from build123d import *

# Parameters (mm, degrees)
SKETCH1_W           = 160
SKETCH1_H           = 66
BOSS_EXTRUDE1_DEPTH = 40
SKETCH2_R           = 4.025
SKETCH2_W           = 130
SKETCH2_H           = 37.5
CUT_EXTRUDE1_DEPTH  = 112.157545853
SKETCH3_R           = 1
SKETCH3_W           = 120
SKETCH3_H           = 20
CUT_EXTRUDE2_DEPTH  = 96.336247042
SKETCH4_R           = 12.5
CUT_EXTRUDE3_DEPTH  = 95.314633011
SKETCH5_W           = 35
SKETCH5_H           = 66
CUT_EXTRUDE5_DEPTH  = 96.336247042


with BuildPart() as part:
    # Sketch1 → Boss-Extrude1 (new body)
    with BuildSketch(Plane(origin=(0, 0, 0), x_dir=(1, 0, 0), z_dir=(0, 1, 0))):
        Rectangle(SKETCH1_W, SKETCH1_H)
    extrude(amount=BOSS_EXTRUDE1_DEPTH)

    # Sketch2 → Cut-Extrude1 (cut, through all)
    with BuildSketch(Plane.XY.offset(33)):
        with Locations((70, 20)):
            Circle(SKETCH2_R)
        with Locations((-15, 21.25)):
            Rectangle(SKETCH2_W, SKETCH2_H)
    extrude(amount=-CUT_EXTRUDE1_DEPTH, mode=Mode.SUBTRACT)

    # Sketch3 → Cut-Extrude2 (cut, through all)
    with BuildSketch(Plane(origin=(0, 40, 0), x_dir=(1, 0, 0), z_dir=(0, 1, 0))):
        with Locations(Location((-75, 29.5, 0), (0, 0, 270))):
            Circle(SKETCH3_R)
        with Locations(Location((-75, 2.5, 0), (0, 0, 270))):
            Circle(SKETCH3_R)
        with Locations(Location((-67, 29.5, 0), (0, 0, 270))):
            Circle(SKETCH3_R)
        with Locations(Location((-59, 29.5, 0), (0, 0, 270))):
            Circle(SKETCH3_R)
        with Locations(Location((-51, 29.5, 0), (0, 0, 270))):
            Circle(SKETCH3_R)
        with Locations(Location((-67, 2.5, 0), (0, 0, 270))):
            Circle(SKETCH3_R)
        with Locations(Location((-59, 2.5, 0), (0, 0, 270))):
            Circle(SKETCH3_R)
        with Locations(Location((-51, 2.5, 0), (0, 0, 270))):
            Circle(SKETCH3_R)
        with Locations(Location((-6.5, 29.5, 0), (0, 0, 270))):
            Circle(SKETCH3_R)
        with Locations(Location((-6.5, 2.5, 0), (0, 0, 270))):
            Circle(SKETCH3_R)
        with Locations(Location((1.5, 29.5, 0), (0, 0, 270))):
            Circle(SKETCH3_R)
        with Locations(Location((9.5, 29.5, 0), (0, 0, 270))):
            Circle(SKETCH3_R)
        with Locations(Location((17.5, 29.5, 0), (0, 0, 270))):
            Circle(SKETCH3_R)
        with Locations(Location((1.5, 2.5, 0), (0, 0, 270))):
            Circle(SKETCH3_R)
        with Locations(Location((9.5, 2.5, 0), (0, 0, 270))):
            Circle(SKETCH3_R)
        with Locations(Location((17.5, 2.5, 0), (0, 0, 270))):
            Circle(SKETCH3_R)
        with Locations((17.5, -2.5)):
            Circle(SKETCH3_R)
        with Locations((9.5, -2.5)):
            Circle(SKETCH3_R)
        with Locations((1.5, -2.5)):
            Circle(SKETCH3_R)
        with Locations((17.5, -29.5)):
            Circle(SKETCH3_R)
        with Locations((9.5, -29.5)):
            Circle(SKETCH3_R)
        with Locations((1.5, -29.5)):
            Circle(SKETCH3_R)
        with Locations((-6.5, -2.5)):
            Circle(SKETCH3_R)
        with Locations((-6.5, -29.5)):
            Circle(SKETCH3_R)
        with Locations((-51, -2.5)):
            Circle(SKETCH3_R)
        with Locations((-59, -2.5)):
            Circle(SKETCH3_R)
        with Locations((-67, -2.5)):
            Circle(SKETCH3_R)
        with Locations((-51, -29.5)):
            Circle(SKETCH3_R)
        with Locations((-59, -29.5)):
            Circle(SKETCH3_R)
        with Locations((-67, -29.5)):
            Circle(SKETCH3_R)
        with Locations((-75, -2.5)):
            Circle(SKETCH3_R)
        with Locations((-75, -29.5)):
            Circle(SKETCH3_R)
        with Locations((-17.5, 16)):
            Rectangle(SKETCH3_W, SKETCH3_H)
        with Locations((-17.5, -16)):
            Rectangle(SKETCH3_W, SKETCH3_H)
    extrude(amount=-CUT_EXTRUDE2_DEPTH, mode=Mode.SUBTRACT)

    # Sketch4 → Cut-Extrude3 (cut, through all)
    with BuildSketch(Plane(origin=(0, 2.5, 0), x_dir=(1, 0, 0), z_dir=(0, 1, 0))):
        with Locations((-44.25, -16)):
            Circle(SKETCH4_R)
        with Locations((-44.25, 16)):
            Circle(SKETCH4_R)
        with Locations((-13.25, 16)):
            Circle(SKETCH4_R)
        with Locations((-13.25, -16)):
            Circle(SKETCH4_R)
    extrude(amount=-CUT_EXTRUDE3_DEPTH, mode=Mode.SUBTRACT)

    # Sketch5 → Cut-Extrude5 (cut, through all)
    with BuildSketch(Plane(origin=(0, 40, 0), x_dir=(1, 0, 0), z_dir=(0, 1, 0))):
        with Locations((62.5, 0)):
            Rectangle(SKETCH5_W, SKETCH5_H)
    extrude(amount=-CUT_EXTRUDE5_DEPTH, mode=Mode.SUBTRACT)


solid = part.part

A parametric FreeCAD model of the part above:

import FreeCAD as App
import Part
import Sketcher
Q = App.Units.Quantity


def add_polygon(sketch, points):
    """Adds a closed chain of lines whose ends are joined by coincident constraints."""
    first, n = sketch.GeometryCount, len(points)
    for a, b in zip(points, points[1:] + points[:1]):
        sketch.addGeometry(Part.LineSegment(App.Vector(*a, 0), App.Vector(*b, 0)), False)
    for i in range(n):
        sketch.addConstraint(Sketcher.Constraint("Coincident", first + i, 2, first + (i + 1) % n, 1))

doc = App.newDocument("Part")
params = doc.addObject("Spreadsheet::Sheet", "Params")
for row, (alias, value) in enumerate([
    ("sketch1_width", "160 mm"),
    ("sketch1_height", "66 mm"),
    ("pad1_length", "40 mm"),
    ("sketch2_diameter", "8.05 mm"),
    ("sketch2_width", "130 mm"),
    ("sketch2_height", "37.5 mm"),
    ("sketch3_diameter", "2 mm"),
    ("sketch3_width", "120 mm"),
    ("sketch3_height", "20 mm"),
    ("sketch4_diameter", "25 mm"),
    ("sketch5_width", "35 mm"),
    ("sketch5_height", "66 mm"),
], start=1):
    params.set(f"A{row}", alias)
    params.set(f"B{row}", "=" + value)
    params.setAlias(f"B{row}", alias)

body = doc.addObject("PartDesign::Body", "Body")

sketch1 = body.newObject("Sketcher::SketchObject", "Sketch")
sketch1.AttachmentSupport = (doc.getObject("XZ_Plane"), [""])
sketch1.MapMode = "FlatFace"
add_polygon(sketch1, [(-80, -33), (-80, 33), (80, 33), (80, -33)])
sketch1.addConstraint([
    Sketcher.Constraint("Vertical", 0),
    Sketcher.Constraint("Horizontal", 1),
    Sketcher.Constraint("Vertical", 2),
    Sketcher.Constraint("Horizontal", 3),
    Sketcher.Constraint("Symmetric", 0, 2, 2, 2, -1, 1),
    Sketcher.Constraint("DistanceX", 1, 1, 1, 2, Q("160 mm")),
    Sketcher.Constraint("DistanceY", 0, 1, 0, 2, Q("66 mm")),
])
sketch1.setExpression("Constraints[9]", "Params.sketch1_width")
sketch1.setExpression("Constraints[10]", "Params.sketch1_height")
pad1 = body.newObject("PartDesign::Pad", "Pad")
pad1.Profile = sketch1
pad1.setExpression("Length", "Params.pad1_length")
pad1.Reversed = True

sketch2 = body.newObject("Sketcher::SketchObject", "Sketch001")
sketch2.AttachmentSupport = (doc.getObject("XY_Plane"), [""])
sketch2.MapMode = "FlatFace"
sketch2.AttachmentOffset = App.Placement(App.Vector(0, 0, 33), App.Rotation())
sketch2.addGeometry(Part.Circle(App.Vector(70, 20, 0), App.Vector(0, 0, 1), 4), False)
add_polygon(sketch2, [(-80, 40), (-80, 2.5), (50, 2.5), (50, 40)])
sketch2.addConstraint([
    Sketcher.Constraint("Vertical", 1),
    Sketcher.Constraint("Horizontal", 2),
    Sketcher.Constraint("Vertical", 3),
    Sketcher.Constraint("Horizontal", 4),
    Sketcher.Constraint("Diameter", 0, Q("8.05 mm")),
    Sketcher.Constraint("DistanceX", 2, 1, 2, 2, Q("130 mm")),
    Sketcher.Constraint("DistanceY", 1, 2, 1, 1, Q("37.5 mm")),
    Sketcher.Constraint("DistanceX", -1, 1, 0, 3, Q("70 mm")),
    Sketcher.Constraint("DistanceY", -1, 1, 0, 3, Q("20 mm")),
    Sketcher.Constraint("DistanceX", 1, 2, -1, 1, Q("80 mm")),
    Sketcher.Constraint("DistanceY", -1, 1, 3, 2, Q("40 mm")),
])
sketch2.setExpression("Constraints[8]", "Params.sketch2_diameter")
sketch2.setExpression("Constraints[9]", "Params.sketch2_width")
sketch2.setExpression("Constraints[10]", "Params.sketch2_height")
pocket1 = body.newObject("PartDesign::Pocket", "Pocket")
pocket1.Profile = sketch2
pocket1.Type = "ThroughAll"

sketch3 = body.newObject("Sketcher::SketchObject", "Sketch002")
sketch3.AttachmentSupport = (doc.getObject("XZ_Plane"), [""])
sketch3.MapMode = "FlatFace"
sketch3.AttachmentOffset = App.Placement(App.Vector(0, 0, -40), App.Rotation())
sketch3.addGeometry(Part.Circle(App.Vector(-75, -29.5, 0), App.Vector(0, 0, 1), 1), False)
sketch3.addGeometry(Part.Circle(App.Vector(-75, -2.5, 0), App.Vector(0, 0, 1), 1), False)
sketch3.addGeometry(Part.Circle(App.Vector(-67, -29.5, 0), App.Vector(0, 0, 1), 1), False)
sketch3.addGeometry(Part.Circle(App.Vector(-59, -29.5, 0), App.Vector(0, 0, 1), 1), False)
sketch3.addGeometry(Part.Circle(App.Vector(-51, -29.5, 0), App.Vector(0, 0, 1), 1), False)
sketch3.addGeometry(Part.Circle(App.Vector(-67, -2.5, 0), App.Vector(0, 0, 1), 1), False)
sketch3.addGeometry(Part.Circle(App.Vector(-59, -2.5, 0), App.Vector(0, 0, 1), 1), False)
sketch3.addGeometry(Part.Circle(App.Vector(-51, -2.5, 0), App.Vector(0, 0, 1), 1), False)
sketch3.addGeometry(Part.Circle(App.Vector(-6.5, -29.5, 0), App.Vector(0, 0, 1), 1), False)
sketch3.addGeometry(Part.Circle(App.Vector(-6.5, -2.5, 0), App.Vector(0, 0, 1), 1), False)
sketch3.addGeometry(Part.Circle(App.Vector(1.5, -29.5, 0), App.Vector(0, 0, 1), 1), False)
sketch3.addGeometry(Part.Circle(App.Vector(9.5, -29.5, 0), App.Vector(0, 0, 1), 1), False)
sketch3.addGeometry(Part.Circle(App.Vector(17.5, -29.5, 0), App.Vector(0, 0, 1), 1), False)
sketch3.addGeometry(Part.Circle(App.Vector(1.5, -2.5, 0), App.Vector(0, 0, 1), 1), False)
sketch3.addGeometry(Part.Circle(App.Vector(9.5, -2.5, 0), App.Vector(0, 0, 1), 1), False)
sketch3.addGeometry(Part.Circle(App.Vector(17.5, -2.5, 0), App.Vector(0, 0, 1), 1), False)
sketch3.addGeometry(Part.Circle(App.Vector(17.5, 2.5, 0), App.Vector(0, 0, 1), 1), False)
sketch3.addGeometry(Part.Circle(App.Vector(9.5, 2.5, 0), App.Vector(0, 0, 1), 1), False)
sketch3.addGeometry(Part.Circle(App.Vector(1.5, 2.5, 0), App.Vector(0, 0, 1), 1), False)
sketch3.addGeometry(Part.Circle(App.Vector(17.5, 29.5, 0), App.Vector(0, 0, 1), 1), False)
sketch3.addGeometry(Part.Circle(App.Vector(9.5, 29.5, 0), App.Vector(0, 0, 1), 1), False)
sketch3.addGeometry(Part.Circle(App.Vector(1.5, 29.5, 0), App.Vector(0, 0, 1), 1), False)
sketch3.addGeometry(Part.Circle(App.Vector(-6.5, 2.5, 0), App.Vector(0, 0, 1), 1), False)
sketch3.addGeometry(Part.Circle(App.Vector(-6.5, 29.5, 0), App.Vector(0, 0, 1), 1), False)
sketch3.addGeometry(Part.Circle(App.Vector(-51, 2.5, 0), App.Vector(0, 0, 1), 1), False)
sketch3.addGeometry(Part.Circle(App.Vector(-59, 2.5, 0), App.Vector(0, 0, 1), 1), False)
sketch3.addGeometry(Part.Circle(App.Vector(-67, 2.5, 0), App.Vector(0, 0, 1), 1), False)
sketch3.addGeometry(Part.Circle(App.Vector(-51, 29.5, 0), App.Vector(0, 0, 1), 1), False)
sketch3.addGeometry(Part.Circle(App.Vector(-59, 29.5, 0), App.Vector(0, 0, 1), 1), False)
sketch3.addGeometry(Part.Circle(App.Vector(-67, 29.5, 0), App.Vector(0, 0, 1), 1), False)
sketch3.addGeometry(Part.Circle(App.Vector(-75, 2.5, 0), App.Vector(0, 0, 1), 1), False)
sketch3.addGeometry(Part.Circle(App.Vector(-75, 29.5, 0), App.Vector(0, 0, 1), 1), False)
add_polygon(sketch3, [(-77.5, -26), (-77.5, -6), (42.5, -6), (42.5, -26)])
add_polygon(sketch3, [(-77.5, 6), (-77.5, 26), (42.5, 26), (42.5, 6)])
sketch3.addConstraint([
    Sketcher.Constraint("Vertical", 32),
    Sketcher.Constraint("Horizontal", 33),
    Sketcher.Constraint("Vertical", 34),
    Sketcher.Constraint("Horizontal", 35),
    Sketcher.Constraint("Vertical", 36),
    Sketcher.Constraint("Horizontal", 37),
    Sketcher.Constraint("Vertical", 38),
    Sketcher.Constraint("Horizontal", 39),
    Sketcher.Constraint("Equal", 0, 1),
    Sketcher.Constraint("Equal", 1, 2),
    Sketcher.Constraint("Equal", 2, 3),
    Sketcher.Constraint("Equal", 3, 4),
    Sketcher.Constraint("Equal", 4, 5),
    Sketcher.Constraint("Equal", 5, 6),
    Sketcher.Constraint("Equal", 6, 7),
    Sketcher.Constraint("Equal", 7, 8),
    Sketcher.Constraint("Equal", 8, 9),
    Sketcher.Constraint("Equal", 9, 10),
    Sketcher.Constraint("Equal", 10, 11),
    Sketcher.Constraint("Equal", 11, 12),
    Sketcher.Constraint("Equal", 12, 13),
    Sketcher.Constraint("Equal", 13, 14),
    Sketcher.Constraint("Equal", 14, 15),
    Sketcher.Constraint("Equal", 15, 16),
    Sketcher.Constraint("Equal", 16, 17),
    Sketcher.Constraint("Equal", 17, 18),
    Sketcher.Constraint("Equal", 18, 19),
    Sketcher.Constraint("Equal", 19, 20),
    Sketcher.Constraint("Equal", 20, 21),
    Sketcher.Constraint("Equal", 21, 22),
    Sketcher.Constraint("Equal", 22, 23),
    Sketcher.Constraint("Equal", 23, 24),
    Sketcher.Constraint("Equal", 24, 25),
    Sketcher.Constraint("Equal", 25, 26),
    Sketcher.Constraint("Equal", 26, 27),
    Sketcher.Constraint("Equal", 27, 28),
    Sketcher.Constraint("Equal", 28, 29),
    Sketcher.Constraint("Equal", 29, 30),
    Sketcher.Constraint("Equal", 30, 31),
    Sketcher.Constraint("Symmetric", 15, 3, 16, 3, -1),
    Sketcher.Constraint("Symmetric", 14, 3, 17, 3, -1),
    Sketcher.Constraint("Symmetric", 13, 3, 18, 3, -1),
    Sketcher.Constraint("Symmetric", 12, 3, 19, 3, -1),
    Sketcher.Constraint("Symmetric", 11, 3, 20, 3, -1),
    Sketcher.Constraint("Symmetric", 10, 3, 21, 3, -1),
    Sketcher.Constraint("Symmetric", 9, 3, 22, 3, -1),
    Sketcher.Constraint("Symmetric", 8, 3, 23, 3, -1),
    Sketcher.Constraint("Symmetric", 7, 3, 24, 3, -1),
    Sketcher.Constraint("Symmetric", 6, 3, 25, 3, -1),
    Sketcher.Constraint("Symmetric", 5, 3, 26, 3, -1),
    Sketcher.Constraint("Symmetric", 4, 3, 27, 3, -1),
    Sketcher.Constraint("Symmetric", 3, 3, 28, 3, -1),
    Sketcher.Constraint("Symmetric", 2, 3, 29, 3, -1),
    Sketcher.Constraint("Symmetric", 1, 3, 30, 3, -1),
    Sketcher.Constraint("Symmetric", 0, 3, 31, 3, -1),
    Sketcher.Constraint("Symmetric", 35, 2, 36, 2, -1),
    Sketcher.Constraint("Symmetric", 33, 2, 38, 2, -1),
    Sketcher.Constraint("Horizontal", 0, 3, 2, 3),
    Sketcher.Constraint("Horizontal", 2, 3, 3, 3),
    Sketcher.Constraint("Horizontal", 3, 3, 4, 3),
    Sketcher.Constraint("Horizontal", 1, 3, 5, 3),
    Sketcher.Constraint("Horizontal", 5, 3, 6, 3),
    Sketcher.Constraint("Horizontal", 6, 3, 7, 3),
    Sketcher.Constraint("Horizontal", 4, 3, 8, 3),
    Sketcher.Constraint("Horizontal", 7, 3, 9, 3),
    Sketcher.Constraint("Horizontal", 8, 3, 10, 3),
    Sketcher.Constraint("Horizontal", 10, 3, 11, 3),
    Sketcher.Constraint("Horizontal", 11, 3, 12, 3),
    Sketcher.Constraint("Horizontal", 9, 3, 13, 3),
    Sketcher.Constraint("Horizontal", 13, 3, 14, 3),
    Sketcher.Constraint("Horizontal", 14, 3, 15, 3),
    Sketcher.Constraint("Vertical", 0, 3, 1, 3),
    Sketcher.Constraint("Vertical", 2, 3, 5, 3),
    Sketcher.Constraint("Vertical", 3, 3, 6, 3),
    Sketcher.Constraint("Vertical", 4, 3, 7, 3),
    Sketcher.Constraint("Vertical", 8, 3, 9, 3),
    Sketcher.Constraint("Vertical", 10, 3, 13, 3),
    Sketcher.Constraint("Vertical", 11, 3, 14, 3),
    Sketcher.Constraint("Vertical", 12, 3, 15, 3),
    Sketcher.Constraint("Diameter", 0, Q("2 mm")),
    Sketcher.Constraint("DistanceX", 33, 1, 33, 2, Q("120 mm")),
    Sketcher.Constraint("DistanceY", 32, 1, 32, 2, Q("20 mm")),
    Sketcher.Constraint("DistanceX", 0, 3, -1, 1, Q("75 mm")),
    Sketcher.Constraint("DistanceX", 2, 3, -1, 1, Q("67 mm")),
    Sketcher.Constraint("DistanceX", 3, 3, -1, 1, Q("59 mm")),
    Sketcher.Constraint("DistanceX", 4, 3, -1, 1, Q("51 mm")),
    Sketcher.Constraint("DistanceY", 32, 2, -1, 1, Q("6 mm")),
    Sketcher.Constraint("DistanceY", 0, 3, 1, 3, Q("27 mm")),
    Sketcher.Constraint("DistanceX", 8, 3, 10, 3, Q("8 mm")),
    Sketcher.Constraint("DistanceX", 10, 3, 11, 3, Q("8 mm")),
    Sketcher.Constraint("DistanceX", 11, 3, 12, 3, Q("8 mm")),
    Sketcher.Constraint("DistanceY", 15, 3, 16, 3, Q("5 mm")),
    Sketcher.Constraint("DistanceX", 15, 3, 33, 2, Q("25 mm")),
    Sketcher.Constraint("DistanceX", 8, 3, -1, 1, Q("6.5 mm")),
])
sketch3.setExpression("Constraints[87]", "Params.sketch3_diameter")
sketch3.setExpression("Constraints[88]", "Params.sketch3_width")
sketch3.setExpression("Constraints[89]", "Params.sketch3_height")
pocket2 = body.newObject("PartDesign::Pocket", "Pocket001")
pocket2.Profile = sketch3
pocket2.Type = "ThroughAll"
pocket2.Reversed = True

sketch4 = body.newObject("Sketcher::SketchObject", "Sketch003")
sketch4.AttachmentSupport = (doc.getObject("XZ_Plane"), [""])
sketch4.MapMode = "FlatFace"
sketch4.AttachmentOffset = App.Placement(App.Vector(0, 0, -2.5), App.Rotation())
sketch4.addGeometry([
    Part.Circle(App.Vector(-44, 16, 0), App.Vector(0, 0, 1), 12),
    Part.Circle(App.Vector(-44, -16, 0), App.Vector(0, 0, 1), 12),
    Part.Circle(App.Vector(-13, -16, 0), App.Vector(0, 0, 1), 12),
    Part.Circle(App.Vector(-13, 16, 0), App.Vector(0, 0, 1), 12),
], False)
sketch4.addConstraint([
    Sketcher.Constraint("Equal", 0, 1),
    Sketcher.Constraint("Equal", 1, 2),
    Sketcher.Constraint("Equal", 2, 3),
    Sketcher.Constraint("Symmetric", 0, 3, 1, 3, -1),
    Sketcher.Constraint("Symmetric", 2, 3, 3, 3, -1),
    Sketcher.Constraint("Horizontal", 1, 3, 2, 3),
    Sketcher.Constraint("Diameter", 0, Q("25 mm")),
    Sketcher.Constraint("DistanceY", -1, 1, 0, 3, Q("16 mm")),
    Sketcher.Constraint("DistanceX", 1, 3, 2, 3, Q("31 mm")),
    Sketcher.Constraint("DistanceX", 0, 3, -1, 1, Q("44.25 mm")),
])
sketch4.setExpression("Constraints[6]", "Params.sketch4_diameter")
pocket3 = body.newObject("PartDesign::Pocket", "Pocket002")
pocket3.Profile = sketch4
pocket3.Type = "ThroughAll"
pocket3.Reversed = True

sketch5 = body.newObject("Sketcher::SketchObject", "Sketch004")
sketch5.AttachmentSupport = (doc.getObject("XZ_Plane"), [""])
sketch5.MapMode = "FlatFace"
sketch5.AttachmentOffset = App.Placement(App.Vector(0, 0, -40), App.Rotation())
add_polygon(sketch5, [(45, -33), (45, 33), (80, 33), (80, -33)])
sketch5.addConstraint([
    Sketcher.Constraint("Vertical", 0),
    Sketcher.Constraint("Horizontal", 1),
    Sketcher.Constraint("Vertical", 2),
    Sketcher.Constraint("Horizontal", 3),
    Sketcher.Constraint("DistanceX", 1, 1, 1, 2, Q("35 mm")),
    Sketcher.Constraint("DistanceY", 0, 1, 0, 2, Q("66 mm")),
    Sketcher.Constraint("DistanceX", -1, 1, 0, 2, Q("45 mm")),
    Sketcher.Constraint("DistanceY", -1, 1, 0, 2, Q("33 mm")),
])
sketch5.setExpression("Constraints[8]", "Params.sketch5_width")
sketch5.setExpression("Constraints[9]", "Params.sketch5_height")
pocket4 = body.newObject("PartDesign::Pocket", "Pocket003")
pocket4.Profile = sketch5
pocket4.Type = "ThroughAll"
pocket4.Reversed = True

doc.recompute()
